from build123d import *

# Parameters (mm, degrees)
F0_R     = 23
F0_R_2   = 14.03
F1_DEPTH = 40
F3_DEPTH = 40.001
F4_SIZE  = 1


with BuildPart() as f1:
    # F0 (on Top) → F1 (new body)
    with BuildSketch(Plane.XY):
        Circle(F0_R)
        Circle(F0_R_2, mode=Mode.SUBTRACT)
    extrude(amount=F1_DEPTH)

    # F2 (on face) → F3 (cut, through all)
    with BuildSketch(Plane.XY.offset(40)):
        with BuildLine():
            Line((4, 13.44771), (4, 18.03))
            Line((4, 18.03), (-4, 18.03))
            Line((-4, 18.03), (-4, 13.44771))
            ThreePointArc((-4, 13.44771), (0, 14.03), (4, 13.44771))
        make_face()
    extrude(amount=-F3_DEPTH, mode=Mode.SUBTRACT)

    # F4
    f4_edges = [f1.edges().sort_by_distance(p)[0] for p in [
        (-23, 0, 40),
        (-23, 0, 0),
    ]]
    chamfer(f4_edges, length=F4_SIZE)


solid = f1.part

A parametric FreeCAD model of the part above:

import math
import FreeCAD as App
import Part
import Sketcher
Q = App.Units.Quantity


def edges_at(feature, points):
    """Names of the edges that pass closest to the given points."""
    edges = feature.Shape.Edges
    near = lambda p: min(range(len(edges)), key=lambda i: edges[i].distToShape(Part.Vertex(*p))[0])
    return sorted({f"Edge{near(p) + 1}" for p in points})

doc = App.newDocument("Part")
body = doc.addObject("PartDesign::Body", "Body")

# Sketch on XY plane
sketch1 = body.newObject("Sketcher::SketchObject", "Sketch")
sketch1.AttachmentSupport = (doc.getObject("XY_Plane"), [""])
sketch1.MapMode = "FlatFace"
sketch1.addGeometry(Part.Circle(App.Vector(0, 0, 0), App.Vector(0, 0, 1), 23), False)
sketch1.addGeometry(Part.Circle(App.Vector(0, 0, 0), App.Vector(0, 0, 1), 14), False)
sketch1.addConstraint(Sketcher.Constraint("Coincident", 0, 3, -1, 1))
sketch1.addConstraint(Sketcher.Constraint("Coincident", 1, 3, -1, 1))
sketch1.addConstraint(Sketcher.Constraint("Diameter", 0, Q("46 mm")))
sketch1.addConstraint(Sketcher.Constraint("Diameter", 1, Q("28.06 mm")))
pad1 = body.newObject("PartDesign::Pad", "Pad")
pad1.Profile = sketch1
pad1.Length = 40

# Sketch on XY plane
sketch2 = body.newObject("Sketcher::SketchObject", "Sketch001")
sketch2.AttachmentSupport = (doc.getObject("XY_Plane"), [""])
sketch2.MapMode = "FlatFace"
sketch2.AttachmentOffset = App.Placement(App.Vector(0, 0, 40), App.Rotation())
sketch2.addGeometry(Part.LineSegment(App.Vector(4, 13.4, 0), App.Vector(4, 18, 0)), False)
sketch2.addGeometry(Part.LineSegment(App.Vector(4, 18, 0), App.Vector(-4, 18, 0)), False)
sketch2.addGeometry(Part.LineSegment(App.Vector(-4, 18, 0), App.Vector(-4, 13.4, 0)), False)
sketch2.addGeometry(Part.ArcOfCircle(Part.Circle(App.Vector(0, 0, 0), App.Vector(0, 0, 1), 14), math.radians(73), math.radians(107)), False)
sketch2.addConstraint(Sketcher.Constraint("Coincident", 0, 2, 1, 1))
sketch2.addConstraint(Sketcher.Constraint("Coincident", 1, 2, 2, 1))
sketch2.addConstraint(Sketcher.Constraint("Coincident", 2, 2, 3, 2))
sketch2.addConstraint(Sketcher.Constraint("Coincident", 3, 1, 0, 1))
sketch2.addConstraint(Sketcher.Constraint("Vertical", 0))
sketch2.addConstraint(Sketcher.Constraint("Horizontal", 1))
sketch2.addConstraint(Sketcher.Constraint("Vertical", 2))
sketch2.addConstraint(Sketcher.Constraint("Coincident", 3, 3, -1, 1))
sketch2.addConstraint(Sketcher.Constraint("Horizontal", 2, 2, 3, 1))
sketch2.addConstraint(Sketcher.Constraint("DistanceX", 1, 2, 1, 1, Q("8 mm")))
sketch2.addConstraint(Sketcher.Constraint("DistanceY", -1, 1, 0, 2, Q("18.03 mm")))
sketch2.addConstraint(Sketcher.Constraint("Radius", 3, Q("14.030004 mm")))
pocket1 = body.newObject("PartDesign::Pocket", "Pocket")
pocket1.Profile = sketch2
pocket1.Type = "ThroughAll"
doc.recompute()

chamfer = body.newObject("PartDesign::Chamfer", "Chamfer")
chamfer.Base = (pocket1, edges_at(pocket1, [(-23, 0, 40), (-23, 0, 0)]))
chamfer.Size = 1

doc.recompute()
